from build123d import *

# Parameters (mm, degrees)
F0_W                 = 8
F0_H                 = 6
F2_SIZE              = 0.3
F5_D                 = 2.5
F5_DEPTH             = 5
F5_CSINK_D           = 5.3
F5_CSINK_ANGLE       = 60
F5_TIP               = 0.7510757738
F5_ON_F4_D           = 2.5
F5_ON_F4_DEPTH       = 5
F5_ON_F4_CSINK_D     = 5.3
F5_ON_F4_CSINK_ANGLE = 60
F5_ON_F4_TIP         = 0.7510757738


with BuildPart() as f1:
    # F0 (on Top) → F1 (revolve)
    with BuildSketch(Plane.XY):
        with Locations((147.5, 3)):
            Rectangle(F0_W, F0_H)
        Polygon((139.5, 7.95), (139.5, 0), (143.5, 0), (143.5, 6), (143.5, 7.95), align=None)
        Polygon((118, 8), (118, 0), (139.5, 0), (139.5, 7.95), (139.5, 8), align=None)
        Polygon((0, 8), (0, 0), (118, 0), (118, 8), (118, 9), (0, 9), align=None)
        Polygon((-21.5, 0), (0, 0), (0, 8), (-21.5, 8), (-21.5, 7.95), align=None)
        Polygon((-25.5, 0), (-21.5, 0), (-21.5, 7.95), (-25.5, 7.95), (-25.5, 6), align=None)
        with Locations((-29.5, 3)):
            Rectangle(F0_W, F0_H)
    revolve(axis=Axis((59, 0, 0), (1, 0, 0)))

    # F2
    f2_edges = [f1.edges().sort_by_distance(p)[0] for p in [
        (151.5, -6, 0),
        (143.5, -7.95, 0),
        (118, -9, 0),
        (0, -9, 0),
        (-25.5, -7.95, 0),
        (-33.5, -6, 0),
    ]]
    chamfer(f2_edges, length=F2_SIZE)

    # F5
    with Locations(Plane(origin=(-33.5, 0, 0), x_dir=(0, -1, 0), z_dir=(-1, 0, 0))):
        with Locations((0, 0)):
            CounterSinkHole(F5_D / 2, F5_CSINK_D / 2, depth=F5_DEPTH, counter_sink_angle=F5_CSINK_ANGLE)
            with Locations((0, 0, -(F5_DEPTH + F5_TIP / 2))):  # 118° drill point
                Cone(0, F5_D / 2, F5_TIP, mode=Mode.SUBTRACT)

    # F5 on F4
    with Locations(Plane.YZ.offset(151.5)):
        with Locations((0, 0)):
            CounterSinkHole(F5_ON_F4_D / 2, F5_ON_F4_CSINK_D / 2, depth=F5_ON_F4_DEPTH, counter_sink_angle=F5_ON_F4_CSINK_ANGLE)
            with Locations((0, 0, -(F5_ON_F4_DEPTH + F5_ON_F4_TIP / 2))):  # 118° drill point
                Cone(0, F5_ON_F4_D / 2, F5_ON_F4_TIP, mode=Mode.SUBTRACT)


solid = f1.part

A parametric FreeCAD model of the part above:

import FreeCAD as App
import Part
import Sketcher
Q = App.Units.Quantity


def edges_at(feature, points):
    """Names of the edges that pass closest to the given points."""
    edges = feature.Shape.Edges
    near = lambda p: min(range(len(edges)), key=lambda i: edges[i].distToShape(Part.Vertex(*p))[0])
    return sorted({f"Edge{near(p) + 1}" for p in points})


def add_polygon(sketch, points):
    """Adds a closed chain of lines whose ends are joined by coincident constraints."""
    first, n = sketch.GeometryCount, len(points)
    for a, b in zip(points, points[1:] + points[:1]):
        sketch.addGeometry(Part.LineSegment(App.Vector(*a, 0), App.Vector(*b, 0)), False)
    for i in range(n):
        sketch.addConstraint(Sketcher.Constraint("Coincident", first + i, 2, first + (i + 1) % n, 1))

doc = App.newDocument("Part")
body = doc.addObject("PartDesign::Body", "Body")

# Sketch on XY plane
sketch1 = body.newObject("Sketcher::SketchObject", "Sketch")
sketch1.AttachmentSupport = (doc.getObject("XY_Plane"), [""])
sketch1.MapMode = "FlatFace"
add_polygon(sketch1, [(151.5, 0), (151.5, 6), (143.5, 6), (143.5, 7.95), (139.5, 7.95), (139.5, 8), (118, 8), (118, 9), (0, 9), (0, 8), (-21.5, 8), (-21.5, 7.95), (-25.5, 7.95), (-25.5, 6), (-33.5, 6), (-33.5, 0)])  # lines 0-15
sketch1.addConstraint(Sketcher.Constraint("Vertical", 0))
sketch1.addConstraint(Sketcher.Constraint("Horizontal", 1))
sketch1.addConstraint(Sketcher.Constraint("Vertical", 2))
sketch1.addConstraint(Sketcher.Constraint("Horizontal", 3))
sketch1.addConstraint(Sketcher.Constraint("Vertical", 4))
sketch1.addConstraint(Sketcher.Constraint("Horizontal", 5))
sketch1.addConstraint(Sketcher.Constraint("Vertical", 6))
sketch1.addConstraint(Sketcher.Constraint("Horizontal", 7))
sketch1.addConstraint(Sketcher.Constraint("Vertical", 8))
sketch1.addConstraint(Sketcher.Constraint("Horizontal", 9))
sketch1.addConstraint(Sketcher.Constraint("Vertical", 10))
sketch1.addConstraint(Sketcher.Constraint("Horizontal", 11))
sketch1.addConstraint(Sketcher.Constraint("Vertical", 12))
sketch1.addConstraint(Sketcher.Constraint("Horizontal", 13))
sketch1.addConstraint(Sketcher.Constraint("Vertical", 14))
sketch1.addConstraint(Sketcher.Constraint("Horizontal", 15))
sketch1.addConstraint(Sketcher.Constraint("PointOnObject", 7, 2, -2))
sketch1.addConstraint(Sketcher.Constraint("PointOnObject", 14, 2, -1))
sketch1.addConstraint(Sketcher.Constraint("Horizontal", 5, 2, 8, 2))
sketch1.addConstraint(Sketcher.Constraint("Horizontal", 3, 2, 10, 2))
sketch1.addConstraint(Sketcher.Constraint("Horizontal", 1, 2, 12, 2))
sketch1.addConstraint(Sketcher.Constraint("Equal", 5, 9))
sketch1.addConstraint(Sketcher.Constraint("Equal", 3, 11))
sketch1.addConstraint(Sketcher.Constraint("Equal", 1, 13))
sketch1.addConstraint(Sketcher.Constraint("DistanceX", 1, 2, 1, 1, Q("8 mm")))
sketch1.addConstraint(Sketcher.Constraint("DistanceX", 3, 2, 3, 1, Q("4 mm")))
sketch1.addConstraint(Sketcher.Constraint("DistanceX", 7, 2, 7, 1, Q("118 mm")))
sketch1.addConstraint(Sketcher.Constraint("DistanceX", 15, 1, 15, 2, Q("185 mm")))
sketch1.addConstraint(Sketcher.Constraint("DistanceY", 0, 1, 0, 2, Q("6 mm")))
sketch1.addConstraint(Sketcher.Constraint("DistanceY", 6, 1, 6, 2, Q("1 mm")))
sketch1.addConstraint(Sketcher.Constraint("DistanceY", -1, 1, 4, 2, Q("8 mm")))
sketch1.addConstraint(Sketcher.Constraint("DistanceY", 2, 1, 2, 2, Q("1.95 mm")))
revolution = body.newObject("PartDesign::Revolution", "Revolution")
revolution.Profile = sketch1
revolution.ReferenceAxis = (sketch1, ["H_Axis"])
revolution.Angle = 360
doc.recompute()

chamfer = body.newObject("PartDesign::Chamfer", "Chamfer")
chamfer.Base = (revolution, edges_at(revolution, [
    (151.5, -6, 0),
    (143.5, -7.95, 0),
    (118, -9, 0),
    (0, -9, 0),
    (-25.5, -7.95, 0),
    (-33.5, -6, 0),
]))
chamfer.Size = 0.3

# Sketch on YZ plane
sketch2 = body.newObject("Sketcher::SketchObject", "Sketch001")
sketch2.AttachmentSupport = (doc.getObject("YZ_Plane"), [""])
sketch2.MapMode = "FlatFace"
sketch2.AttachmentOffset = App.Placement(App.Vector(0, 0, -33.5), App.Rotation())
sketch2.addGeometry(Part.Circle(App.Vector(0, 0, 0), App.Vector(0, 0, 1), 1.2), False)
sketch2.addConstraint(Sketcher.Constraint("Coincident", 0, 3, -1, 1))
sketch2.addConstraint(Sketcher.Constraint("Diameter", 0, Q("2.5 mm")))
doc.recompute()
hole = body.newObject("PartDesign::Hole", "Hole")
hole.Profile = sketch2
hole.ThreadType = "None"
hole.Diameter = 2.5
hole.DepthType = "Dimension"
hole.Depth = 5
hole.DrillPoint = "Angled"
hole.DrillPointAngle = 118
hole.HoleCutType = "Countersink"
hole.HoleCutDiameter = 5.3
hole.HoleCutCountersinkAngle = 60
hole.Reversed = True

# Sketch on YZ plane
sketch3 = body.newObject("Sketcher::SketchObject", "Sketch002")
sketch3.AttachmentSupport = (doc.getObject("YZ_Plane"), [""])
sketch3.MapMode = "FlatFace"
sketch3.AttachmentOffset = App.Placement(App.Vector(0, 0, 151.5), App.Rotation())
sketch3.addGeometry(Part.Circle(App.Vector(0, 0, 0), App.Vector(0, 0, 1), 1.2), False)
sketch3.addConstraint(Sketcher.Constraint("Coincident", 0, 3, -1, 1))
sketch3.addConstraint(Sketcher.Constraint("Diameter", 0, Q("2.5 mm")))
doc.recompute()
hole2 = body.newObject("PartDesign::Hole", "Hole001")
hole2.Profile = sketch3
hole2.ThreadType = "None"
hole2.Diameter = 2.5
hole2.DepthType = "Dimension"
hole2.Depth = 5
hole2.DrillPoint = "Angled"
hole2.DrillPointAngle = 118
hole2.HoleCutType = "Countersink"
hole2.HoleCutDiameter = 5.3
hole2.HoleCutCountersinkAngle = 60

doc.recompute()
